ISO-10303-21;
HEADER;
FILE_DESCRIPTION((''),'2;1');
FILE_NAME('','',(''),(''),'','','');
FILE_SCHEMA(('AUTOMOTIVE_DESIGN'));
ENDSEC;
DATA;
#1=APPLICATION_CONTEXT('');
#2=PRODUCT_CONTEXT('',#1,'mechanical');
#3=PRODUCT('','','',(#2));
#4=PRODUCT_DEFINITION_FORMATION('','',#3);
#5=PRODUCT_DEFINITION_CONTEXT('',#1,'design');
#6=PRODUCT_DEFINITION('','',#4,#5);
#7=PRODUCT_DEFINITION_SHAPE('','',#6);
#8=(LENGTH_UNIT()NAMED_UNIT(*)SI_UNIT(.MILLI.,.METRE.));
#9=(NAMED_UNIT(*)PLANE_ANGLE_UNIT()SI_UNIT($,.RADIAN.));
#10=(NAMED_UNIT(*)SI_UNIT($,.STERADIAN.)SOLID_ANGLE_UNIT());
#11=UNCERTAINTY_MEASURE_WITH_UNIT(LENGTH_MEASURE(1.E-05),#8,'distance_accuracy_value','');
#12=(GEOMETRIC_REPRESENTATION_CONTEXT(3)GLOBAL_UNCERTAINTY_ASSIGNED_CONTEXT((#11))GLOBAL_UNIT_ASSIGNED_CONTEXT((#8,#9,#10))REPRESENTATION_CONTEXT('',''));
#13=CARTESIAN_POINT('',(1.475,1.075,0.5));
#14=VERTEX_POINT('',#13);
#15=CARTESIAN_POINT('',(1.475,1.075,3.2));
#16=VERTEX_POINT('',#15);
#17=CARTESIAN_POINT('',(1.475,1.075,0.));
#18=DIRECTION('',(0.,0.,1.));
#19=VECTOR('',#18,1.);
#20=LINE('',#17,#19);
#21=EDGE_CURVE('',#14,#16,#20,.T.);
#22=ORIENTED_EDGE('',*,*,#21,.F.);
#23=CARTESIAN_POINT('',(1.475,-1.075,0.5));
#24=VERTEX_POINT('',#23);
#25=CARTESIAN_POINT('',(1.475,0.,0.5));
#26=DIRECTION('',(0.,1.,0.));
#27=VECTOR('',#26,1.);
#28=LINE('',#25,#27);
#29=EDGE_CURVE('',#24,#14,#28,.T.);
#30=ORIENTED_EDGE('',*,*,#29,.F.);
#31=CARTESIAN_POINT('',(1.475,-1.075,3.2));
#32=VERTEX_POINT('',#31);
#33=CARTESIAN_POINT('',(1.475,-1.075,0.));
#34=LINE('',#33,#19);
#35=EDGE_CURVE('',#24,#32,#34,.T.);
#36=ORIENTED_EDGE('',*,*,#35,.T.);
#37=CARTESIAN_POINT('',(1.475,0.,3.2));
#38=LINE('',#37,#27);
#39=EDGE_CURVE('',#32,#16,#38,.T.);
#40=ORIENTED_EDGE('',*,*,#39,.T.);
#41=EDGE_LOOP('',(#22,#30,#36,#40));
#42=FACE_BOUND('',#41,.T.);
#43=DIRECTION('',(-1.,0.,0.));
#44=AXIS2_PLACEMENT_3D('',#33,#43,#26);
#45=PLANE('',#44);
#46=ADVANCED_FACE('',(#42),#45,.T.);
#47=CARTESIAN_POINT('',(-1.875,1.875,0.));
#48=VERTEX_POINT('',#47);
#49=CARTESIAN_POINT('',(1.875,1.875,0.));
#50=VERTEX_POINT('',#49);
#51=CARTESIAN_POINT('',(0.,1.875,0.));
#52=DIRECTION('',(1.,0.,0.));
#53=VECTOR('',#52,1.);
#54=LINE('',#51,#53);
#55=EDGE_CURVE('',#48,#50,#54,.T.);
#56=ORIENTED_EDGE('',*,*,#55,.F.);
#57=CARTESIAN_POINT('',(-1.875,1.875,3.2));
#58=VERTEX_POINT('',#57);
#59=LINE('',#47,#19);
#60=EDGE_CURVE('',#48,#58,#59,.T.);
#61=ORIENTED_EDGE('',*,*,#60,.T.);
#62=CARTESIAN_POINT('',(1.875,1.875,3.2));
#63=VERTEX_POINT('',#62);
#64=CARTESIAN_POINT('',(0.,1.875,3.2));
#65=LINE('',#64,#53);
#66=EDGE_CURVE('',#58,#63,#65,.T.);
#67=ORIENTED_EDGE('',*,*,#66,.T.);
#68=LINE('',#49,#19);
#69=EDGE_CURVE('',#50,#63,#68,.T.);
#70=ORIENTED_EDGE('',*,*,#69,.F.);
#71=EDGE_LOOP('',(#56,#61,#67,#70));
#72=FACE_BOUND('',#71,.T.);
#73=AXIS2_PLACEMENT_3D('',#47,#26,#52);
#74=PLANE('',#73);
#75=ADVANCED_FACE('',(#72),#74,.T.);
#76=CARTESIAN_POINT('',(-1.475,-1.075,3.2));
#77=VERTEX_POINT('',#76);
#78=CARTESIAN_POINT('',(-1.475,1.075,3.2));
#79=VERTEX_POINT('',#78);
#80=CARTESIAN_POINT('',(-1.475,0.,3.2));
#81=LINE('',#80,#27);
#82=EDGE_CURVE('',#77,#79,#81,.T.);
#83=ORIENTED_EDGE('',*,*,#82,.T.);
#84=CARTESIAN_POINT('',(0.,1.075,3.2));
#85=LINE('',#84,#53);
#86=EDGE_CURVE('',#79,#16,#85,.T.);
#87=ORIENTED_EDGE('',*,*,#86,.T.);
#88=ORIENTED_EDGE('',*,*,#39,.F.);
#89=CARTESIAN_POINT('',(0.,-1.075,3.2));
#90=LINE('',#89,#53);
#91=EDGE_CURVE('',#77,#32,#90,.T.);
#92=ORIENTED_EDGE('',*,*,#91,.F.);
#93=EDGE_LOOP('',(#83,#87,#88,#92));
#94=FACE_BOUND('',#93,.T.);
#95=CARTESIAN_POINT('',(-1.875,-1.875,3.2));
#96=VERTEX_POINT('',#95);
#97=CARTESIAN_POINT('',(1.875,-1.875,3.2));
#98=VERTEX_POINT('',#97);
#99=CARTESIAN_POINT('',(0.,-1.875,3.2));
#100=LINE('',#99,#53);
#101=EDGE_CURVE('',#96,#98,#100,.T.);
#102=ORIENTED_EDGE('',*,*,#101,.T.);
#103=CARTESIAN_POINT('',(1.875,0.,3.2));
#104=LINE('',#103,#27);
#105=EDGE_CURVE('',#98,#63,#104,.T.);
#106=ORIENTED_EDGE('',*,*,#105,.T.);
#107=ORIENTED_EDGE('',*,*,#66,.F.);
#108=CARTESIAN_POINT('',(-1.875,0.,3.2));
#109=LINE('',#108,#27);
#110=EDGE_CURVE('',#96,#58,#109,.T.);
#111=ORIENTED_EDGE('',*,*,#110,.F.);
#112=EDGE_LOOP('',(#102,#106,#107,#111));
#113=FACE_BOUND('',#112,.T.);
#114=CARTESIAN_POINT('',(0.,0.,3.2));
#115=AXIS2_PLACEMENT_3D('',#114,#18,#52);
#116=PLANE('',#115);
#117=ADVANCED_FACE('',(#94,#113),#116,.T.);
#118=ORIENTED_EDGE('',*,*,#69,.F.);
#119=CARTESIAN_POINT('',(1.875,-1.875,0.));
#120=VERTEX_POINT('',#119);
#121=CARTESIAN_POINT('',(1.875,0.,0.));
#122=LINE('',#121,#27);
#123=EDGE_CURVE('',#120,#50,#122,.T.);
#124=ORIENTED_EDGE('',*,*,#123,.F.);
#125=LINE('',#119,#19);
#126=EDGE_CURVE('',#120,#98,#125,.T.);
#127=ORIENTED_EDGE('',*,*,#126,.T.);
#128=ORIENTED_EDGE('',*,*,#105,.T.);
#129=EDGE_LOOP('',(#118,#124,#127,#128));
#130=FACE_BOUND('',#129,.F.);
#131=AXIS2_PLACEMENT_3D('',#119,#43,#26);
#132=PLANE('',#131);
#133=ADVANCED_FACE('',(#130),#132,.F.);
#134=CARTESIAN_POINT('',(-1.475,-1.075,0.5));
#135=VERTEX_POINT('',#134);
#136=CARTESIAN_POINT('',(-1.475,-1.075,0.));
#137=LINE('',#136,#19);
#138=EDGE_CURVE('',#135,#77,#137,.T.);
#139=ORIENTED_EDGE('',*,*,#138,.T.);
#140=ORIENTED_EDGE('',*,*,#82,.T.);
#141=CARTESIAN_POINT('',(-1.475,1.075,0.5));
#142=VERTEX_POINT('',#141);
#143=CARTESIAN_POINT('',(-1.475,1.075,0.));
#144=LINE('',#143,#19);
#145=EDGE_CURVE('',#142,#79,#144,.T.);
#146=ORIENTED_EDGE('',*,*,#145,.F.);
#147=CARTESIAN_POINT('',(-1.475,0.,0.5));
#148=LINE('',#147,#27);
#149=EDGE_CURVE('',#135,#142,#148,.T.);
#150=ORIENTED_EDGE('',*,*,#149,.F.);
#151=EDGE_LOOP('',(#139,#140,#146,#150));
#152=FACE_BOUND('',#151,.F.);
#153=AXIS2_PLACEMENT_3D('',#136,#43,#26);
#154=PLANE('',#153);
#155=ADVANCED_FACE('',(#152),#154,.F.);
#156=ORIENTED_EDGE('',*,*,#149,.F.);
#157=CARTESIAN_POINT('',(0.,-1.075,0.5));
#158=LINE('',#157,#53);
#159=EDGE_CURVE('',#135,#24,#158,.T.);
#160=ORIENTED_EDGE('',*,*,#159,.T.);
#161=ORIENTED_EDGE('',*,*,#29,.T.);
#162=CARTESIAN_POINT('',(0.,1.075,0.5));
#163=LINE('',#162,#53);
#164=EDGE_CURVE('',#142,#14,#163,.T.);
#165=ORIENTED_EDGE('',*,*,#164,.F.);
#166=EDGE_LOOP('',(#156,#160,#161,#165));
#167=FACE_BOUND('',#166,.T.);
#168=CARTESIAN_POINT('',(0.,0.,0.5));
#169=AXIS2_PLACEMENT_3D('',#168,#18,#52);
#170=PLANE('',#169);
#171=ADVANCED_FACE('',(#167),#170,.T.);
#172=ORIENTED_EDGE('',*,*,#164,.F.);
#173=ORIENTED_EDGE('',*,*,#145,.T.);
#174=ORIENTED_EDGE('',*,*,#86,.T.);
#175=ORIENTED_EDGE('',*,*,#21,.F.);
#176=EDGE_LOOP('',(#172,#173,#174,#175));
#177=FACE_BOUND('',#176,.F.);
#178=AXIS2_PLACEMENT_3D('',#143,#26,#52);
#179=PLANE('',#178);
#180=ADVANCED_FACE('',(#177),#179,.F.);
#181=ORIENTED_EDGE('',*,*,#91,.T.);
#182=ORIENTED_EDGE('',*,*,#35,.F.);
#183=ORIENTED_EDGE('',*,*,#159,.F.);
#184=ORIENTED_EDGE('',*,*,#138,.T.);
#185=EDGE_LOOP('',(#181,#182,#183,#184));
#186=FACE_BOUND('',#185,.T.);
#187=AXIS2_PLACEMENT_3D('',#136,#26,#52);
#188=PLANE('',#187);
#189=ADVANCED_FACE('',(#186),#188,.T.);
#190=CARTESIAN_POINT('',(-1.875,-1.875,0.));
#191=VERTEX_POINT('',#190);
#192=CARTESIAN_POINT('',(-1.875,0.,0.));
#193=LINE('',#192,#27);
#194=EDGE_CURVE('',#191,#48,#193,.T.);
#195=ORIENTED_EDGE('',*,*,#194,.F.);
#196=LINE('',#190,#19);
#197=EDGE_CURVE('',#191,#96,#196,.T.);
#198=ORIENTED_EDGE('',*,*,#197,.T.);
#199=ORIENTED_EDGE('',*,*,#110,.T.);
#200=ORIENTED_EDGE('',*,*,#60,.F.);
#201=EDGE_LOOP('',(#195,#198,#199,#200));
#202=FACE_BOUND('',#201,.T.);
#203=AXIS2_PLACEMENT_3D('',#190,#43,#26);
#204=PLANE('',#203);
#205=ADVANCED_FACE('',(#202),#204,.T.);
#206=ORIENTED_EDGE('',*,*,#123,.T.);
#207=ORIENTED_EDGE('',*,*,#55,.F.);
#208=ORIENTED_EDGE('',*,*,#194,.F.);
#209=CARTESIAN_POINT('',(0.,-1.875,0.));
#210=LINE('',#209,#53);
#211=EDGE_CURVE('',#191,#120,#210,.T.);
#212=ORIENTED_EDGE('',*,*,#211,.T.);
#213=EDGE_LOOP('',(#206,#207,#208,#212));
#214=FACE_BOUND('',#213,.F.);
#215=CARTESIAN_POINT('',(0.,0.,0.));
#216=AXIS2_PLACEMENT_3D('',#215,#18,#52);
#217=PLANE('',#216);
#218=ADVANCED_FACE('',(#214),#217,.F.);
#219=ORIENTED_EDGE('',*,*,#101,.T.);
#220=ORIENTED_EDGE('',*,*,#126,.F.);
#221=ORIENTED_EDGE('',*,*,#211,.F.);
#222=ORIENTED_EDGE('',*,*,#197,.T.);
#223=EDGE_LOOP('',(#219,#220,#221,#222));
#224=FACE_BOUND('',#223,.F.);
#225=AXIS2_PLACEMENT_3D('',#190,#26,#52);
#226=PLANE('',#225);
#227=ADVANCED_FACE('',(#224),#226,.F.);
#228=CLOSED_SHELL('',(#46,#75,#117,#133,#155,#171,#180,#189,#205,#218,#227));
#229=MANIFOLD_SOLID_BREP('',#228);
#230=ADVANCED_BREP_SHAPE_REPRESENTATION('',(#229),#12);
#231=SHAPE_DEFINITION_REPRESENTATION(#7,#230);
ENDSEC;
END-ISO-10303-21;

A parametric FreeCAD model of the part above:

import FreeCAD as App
import Part
import Sketcher

V = App.Vector

doc = App.newDocument("Part")
body = doc.addObject("PartDesign::Body", "Body")

# Sketch on XY plane
sketch1 = body.newObject("Sketcher::SketchObject", "Sketch")
sketch1.AttachmentSupport = (doc.getObject("XY_Plane"), [""])
sketch1.MapMode = "FlatFace"
sketch1.addGeometry(Part.LineSegment(V(-1.9, 1.9, 0), V(-1.9, -1.9, 0)), False)
sketch1.addGeometry(Part.LineSegment(V(-1.9, -1.9, 0), V(1.9, -1.9, 0)), False)
sketch1.addGeometry(Part.LineSegment(V(1.9, -1.9, 0), V(1.9, 1.9, 0)), False)
sketch1.addGeometry(Part.LineSegment(V(1.9, 1.9, 0), V(-1.9, 1.9, 0)), False)
sketch1.addGeometry(Part.LineSegment(V(1.5, -1.1, 0), V(-1.5, -1.1, 0)), False)
sketch1.addGeometry(Part.LineSegment(V(-1.5, -1.1, 0), V(-1.5, 1.1, 0)), False)
sketch1.addGeometry(Part.LineSegment(V(-1.5, 1.1, 0), V(1.5, 1.1, 0)), False)
sketch1.addGeometry(Part.LineSegment(V(1.5, 1.1, 0), V(1.5, -1.1, 0)), False)
sketch1.addConstraint(Sketcher.Constraint("Coincident", 0, 2, 1, 1))
sketch1.addConstraint(Sketcher.Constraint("Coincident", 1, 2, 2, 1))
sketch1.addConstraint(Sketcher.Constraint("Coincident", 2, 2, 3, 1))
sketch1.addConstraint(Sketcher.Constraint("Coincident", 3, 2, 0, 1))
sketch1.addConstraint(Sketcher.Constraint("Coincident", 4, 2, 5, 1))
sketch1.addConstraint(Sketcher.Constraint("Coincident", 5, 2, 6, 1))
sketch1.addConstraint(Sketcher.Constraint("Coincident", 6, 2, 7, 1))
sketch1.addConstraint(Sketcher.Constraint("Coincident", 7, 2, 4, 1))
sketch1.addConstraint(Sketcher.Constraint("Vertical", 0))
sketch1.addConstraint(Sketcher.Constraint("Horizontal", 1))
sketch1.addConstraint(Sketcher.Constraint("Vertical", 2))
sketch1.addConstraint(Sketcher.Constraint("Horizontal", 3))
sketch1.addConstraint(Sketcher.Constraint("Horizontal", 4))
sketch1.addConstraint(Sketcher.Constraint("Vertical", 5))
sketch1.addConstraint(Sketcher.Constraint("Horizontal", 6))
sketch1.addConstraint(Sketcher.Constraint("Vertical", 7))
sketch1.addConstraint(Sketcher.Constraint("Symmetric", 0, 2, 2, 2, -1, 1))
sketch1.addConstraint(Sketcher.Constraint("Symmetric", 4, 2, 6, 2, -1, 1))
sketch1.addConstraint(Sketcher.Constraint("Equal", 3, 0))
sketch1.addConstraint(Sketcher.Constraint("DistanceX", 1, 1, 1, 2, 3.75))
sketch1.addConstraint(Sketcher.Constraint("DistanceX", 4, 2, 4, 1, 2.95))
sketch1.addConstraint(Sketcher.Constraint("DistanceY", 5, 1, 5, 2, 2.15))
pad1 = body.newObject("PartDesign::Pad", "Pad")
pad1.Profile = sketch1
pad1.Length = 3.2

# Sketch on XY plane
sketch2 = body.newObject("Sketcher::SketchObject", "Sketch001")
sketch2.AttachmentSupport = (doc.getObject("XY_Plane"), [""])
sketch2.MapMode = "FlatFace"
sketch2.addGeometry(Part.LineSegment(V(-1.5, 1.1, 0), V(-1.5, -1.1, 0)), False)
sketch2.addGeometry(Part.LineSegment(V(-1.5, -1.1, 0), V(1.5, -1.1, 0)), False)
sketch2.addGeometry(Part.LineSegment(V(1.5, -1.1, 0), V(1.5, 1.1, 0)), False)
sketch2.addGeometry(Part.LineSegment(V(1.5, 1.1, 0), V(-1.5, 1.1, 0)), False)
sketch2.addConstraint(Sketcher.Constraint("Coincident", 0, 2, 1, 1))
sketch2.addConstraint(Sketcher.Constraint("Coincident", 1, 2, 2, 1))
sketch2.addConstraint(Sketcher.Constraint("Coincident", 2, 2, 3, 1))
sketch2.addConstraint(Sketcher.Constraint("Coincident", 3, 2, 0, 1))
sketch2.addConstraint(Sketcher.Constraint("Vertical", 0))
sketch2.addConstraint(Sketcher.Constraint("Horizontal", 1))
sketch2.addConstraint(Sketcher.Constraint("Vertical", 2))
sketch2.addConstraint(Sketcher.Constraint("Horizontal", 3))
sketch2.addConstraint(Sketcher.Constraint("Symmetric", 0, 2, 2, 2, -1, 1))
sketch2.addConstraint(Sketcher.Constraint("DistanceX", 1, 1, 1, 2, 2.95))
sketch2.addConstraint(Sketcher.Constraint("DistanceY", 0, 2, 0, 1, 2.15))
pad2 = body.newObject("PartDesign::Pad", "Pad001")
pad2.Profile = sketch2
pad2.Length = 0.5

doc.recompute()
